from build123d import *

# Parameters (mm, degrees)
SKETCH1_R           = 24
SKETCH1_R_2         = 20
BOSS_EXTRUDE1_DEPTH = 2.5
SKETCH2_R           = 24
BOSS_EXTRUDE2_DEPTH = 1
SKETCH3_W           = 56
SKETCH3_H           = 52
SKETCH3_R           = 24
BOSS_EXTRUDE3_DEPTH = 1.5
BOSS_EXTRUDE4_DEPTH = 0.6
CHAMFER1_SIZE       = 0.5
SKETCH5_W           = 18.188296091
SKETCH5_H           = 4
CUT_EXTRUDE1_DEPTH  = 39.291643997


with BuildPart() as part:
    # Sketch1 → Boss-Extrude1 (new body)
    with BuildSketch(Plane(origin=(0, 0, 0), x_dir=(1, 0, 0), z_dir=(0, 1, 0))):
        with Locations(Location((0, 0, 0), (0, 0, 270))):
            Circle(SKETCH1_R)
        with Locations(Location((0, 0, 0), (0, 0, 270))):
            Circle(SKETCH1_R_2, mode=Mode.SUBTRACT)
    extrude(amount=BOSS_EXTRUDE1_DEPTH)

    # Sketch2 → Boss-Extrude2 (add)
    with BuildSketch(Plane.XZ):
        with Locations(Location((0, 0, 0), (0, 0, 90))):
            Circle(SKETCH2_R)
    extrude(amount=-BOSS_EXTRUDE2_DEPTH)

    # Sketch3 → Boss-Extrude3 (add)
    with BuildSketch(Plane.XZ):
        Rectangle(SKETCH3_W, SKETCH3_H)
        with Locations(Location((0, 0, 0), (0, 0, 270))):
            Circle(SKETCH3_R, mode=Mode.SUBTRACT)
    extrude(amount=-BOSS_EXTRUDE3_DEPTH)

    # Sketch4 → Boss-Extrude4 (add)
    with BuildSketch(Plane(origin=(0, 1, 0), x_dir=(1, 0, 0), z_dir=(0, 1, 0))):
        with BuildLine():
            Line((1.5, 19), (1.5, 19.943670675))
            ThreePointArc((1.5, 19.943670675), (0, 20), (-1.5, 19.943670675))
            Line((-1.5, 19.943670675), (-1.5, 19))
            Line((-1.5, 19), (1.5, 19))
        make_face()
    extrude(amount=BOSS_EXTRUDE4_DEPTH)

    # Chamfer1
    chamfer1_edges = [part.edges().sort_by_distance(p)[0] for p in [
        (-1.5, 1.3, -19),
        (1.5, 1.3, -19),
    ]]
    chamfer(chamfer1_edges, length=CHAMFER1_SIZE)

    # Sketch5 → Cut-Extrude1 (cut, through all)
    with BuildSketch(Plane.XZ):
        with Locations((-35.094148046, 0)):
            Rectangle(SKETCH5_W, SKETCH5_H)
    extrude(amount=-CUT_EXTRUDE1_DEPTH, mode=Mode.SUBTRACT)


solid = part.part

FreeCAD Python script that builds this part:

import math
import FreeCAD as App
import Part
import Sketcher

V = App.Vector
Q = App.Units.Quantity


def edges_at(feature, points):
    """Names of the edges that pass closest to the given points."""
    edges = feature.Shape.Edges
    near = lambda p: min(range(len(edges)), key=lambda i: edges[i].distToShape(Part.Vertex(*p))[0])
    return sorted({f"Edge{near(p) + 1}" for p in points})

doc = App.newDocument("Part")
params = doc.addObject("Spreadsheet::Sheet", "Params")
for row, (alias, value) in enumerate([
    ("sketch1_diameter", "48 mm"),
    ("sketch1_diameter2", "40 mm"),
    ("pad1_length", "2.5 mm"),
    ("sketch2_diameter", "48 mm"),
    ("pad2_length", "1 mm"),
    ("sketch3_diameter", "48 mm"),
    ("sketch3_width", "56 mm"),
    ("sketch3_height", "52 mm"),
    ("pad3_length", "1.5 mm"),
    ("sketch4_radius", "20 mm"),
    ("sketch4_width", "3 mm"),
    ("pad4_length", "0.6 mm"),
    ("chamfer_size", "0.5 mm"),
    ("sketch5_height", "4 mm"),
], start=1):
    params.set(f"A{row}", alias)
    params.set(f"B{row}", "=" + value)
    params.setAlias(f"B{row}", alias)

body = doc.addObject("PartDesign::Body", "Body")

# Sketch on XZ plane
sketch1 = doc.addObject("Sketcher::SketchObject", "Sketch")
body.addObject(sketch1)
sketch1.AttachmentSupport = (doc.XZ_Plane, [""])
sketch1.MapMode = "FlatFace"
sketch1.addGeometry([
    Part.Circle(V(0, 0, 0), V(0, 0, 1), 24),
    Part.Circle(V(0, 0, 0), V(0, 0, 1), 20),
], False)
sketch1.addConstraint([
    Sketcher.Constraint("Coincident", 0, 3, -1, 1),
    Sketcher.Constraint("Coincident", 1, 3, -1, 1),
    Sketcher.Constraint("Diameter", 0, Q("48 mm")),
    Sketcher.Constraint("Diameter", 1, Q("40 mm")),
])
sketch1.setExpression("Constraints[2]", "Params.sketch1_diameter")
sketch1.setExpression("Constraints[3]", "Params.sketch1_diameter2")
pad1 = doc.addObject("PartDesign::Pad", "Pad")
body.addObject(pad1)
pad1.Profile = sketch1
pad1.setExpression("Length", "Params.pad1_length")
pad1.Reversed = True

# Sketch on XZ plane
sketch2 = doc.addObject("Sketcher::SketchObject", "Sketch001")
body.addObject(sketch2)
sketch2.AttachmentSupport = (doc.XZ_Plane, [""])
sketch2.MapMode = "FlatFace"
sketch2.addGeometry(Part.Circle(V(0, 0, 0), V(0, 0, 1), 24), False)
sketch2.addConstraint([
    Sketcher.Constraint("Coincident", 0, 3, -1, 1),
    Sketcher.Constraint("Diameter", 0, Q("48 mm")),
])
sketch2.setExpression("Constraints[1]", "Params.sketch2_diameter")
pad2 = doc.addObject("PartDesign::Pad", "Pad001")
body.addObject(pad2)
pad2.Profile = sketch2
pad2.setExpression("Length", "Params.pad2_length")
pad2.Reversed = True

# Sketch on XZ plane
sketch3 = doc.addObject("Sketcher::SketchObject", "Sketch002")
body.addObject(sketch3)
sketch3.AttachmentSupport = (doc.XZ_Plane, [""])
sketch3.MapMode = "FlatFace"
sketch3.addGeometry([
    Part.LineSegment(V(-28, 26, 0), V(-28, -26, 0)),  # 0
    Part.LineSegment(V(-28, -26, 0), V(28, -26, 0)),  # 1
    Part.LineSegment(V(28, -26, 0), V(28, 26, 0)),  # 2
    Part.LineSegment(V(28, 26, 0), V(-28, 26, 0)),  # 3
    Part.Circle(V(0, 0, 0), V(0, 0, 1), 24),  # 4
], False)
sketch3.addConstraint([
    Sketcher.Constraint("Coincident", 0, 2, 1, 1),
    Sketcher.Constraint("Coincident", 1, 2, 2, 1),
    Sketcher.Constraint("Coincident", 2, 2, 3, 1),
    Sketcher.Constraint("Coincident", 3, 2, 0, 1),
    Sketcher.Constraint("Vertical", 0),
    Sketcher.Constraint("Horizontal", 1),
    Sketcher.Constraint("Vertical", 2),
    Sketcher.Constraint("Horizontal", 3),
    Sketcher.Constraint("Coincident", 4, 3, -1, 1),
    Sketcher.Constraint("Symmetric", 0, 2, 2, 2, -1, 1),
    Sketcher.Constraint("Diameter", 4, Q("48 mm")),
    Sketcher.Constraint("DistanceX", 1, 1, 1, 2, Q("56 mm")),
    Sketcher.Constraint("DistanceY", 0, 2, 0, 1, Q("52 mm")),
])
sketch3.setExpression("Constraints[10]", "Params.sketch3_diameter")
sketch3.setExpression("Constraints[11]", "Params.sketch3_width")
sketch3.setExpression("Constraints[12]", "Params.sketch3_height")
pad3 = doc.addObject("PartDesign::Pad", "Pad002")
body.addObject(pad3)
pad3.Profile = sketch3
pad3.setExpression("Length", "Params.pad3_length")
pad3.Reversed = True

# Sketch on XZ plane
sketch4 = doc.addObject("Sketcher::SketchObject", "Sketch003")
body.addObject(sketch4)
sketch4.AttachmentSupport = (doc.XZ_Plane, [""])
sketch4.MapMode = "FlatFace"
sketch4.AttachmentOffset = App.Placement(V(0, 0, -1), App.Rotation())
sketch4.addGeometry([
    Part.LineSegment(V(1.5, -19, 0), V(1.5, -19.943671, 0)),
    Part.ArcOfCircle(Part.Circle(V(0, 0, 0), V(0, 0, 1), 20), math.radians(-94.301222), math.radians(-85.698778)),
    Part.LineSegment(V(-1.5, -19.943671, 0), V(-1.5, -19, 0)),
    Part.LineSegment(V(-1.5, -19, 0), V(1.5, -19, 0)),
], False)
sketch4.addConstraint([
    Sketcher.Constraint("Coincident", 0, 2, 1, 2),
    Sketcher.Constraint("Coincident", 1, 1, 2, 1),
    Sketcher.Constraint("Coincident", 2, 2, 3, 1),
    Sketcher.Constraint("Coincident", 3, 2, 0, 1),
    Sketcher.Constraint("Vertical", 0),
    Sketcher.Constraint("Vertical", 2),
    Sketcher.Constraint("Horizontal", 3),
    Sketcher.Constraint("Coincident", 1, 3, -1, 1),
    Sketcher.Constraint("Horizontal", 0, 2, 1, 1),
    Sketcher.Constraint("Radius", 1, Q("20 mm")),
    Sketcher.Constraint("DistanceX", 3, 1, 3, 2, Q("3 mm")),
    Sketcher.Constraint("DistanceY", 2, 2, -1, 1, Q("19 mm")),
])
sketch4.setExpression("Constraints[9]", "Params.sketch4_radius")
sketch4.setExpression("Constraints[10]", "Params.sketch4_width")
pad4 = doc.addObject("PartDesign::Pad", "Pad003")
body.addObject(pad4)
pad4.Profile = sketch4
pad4.setExpression("Length", "Params.pad4_length")
pad4.Reversed = True
doc.recompute()

chamfer = doc.addObject("PartDesign::Chamfer", "Chamfer")
body.addObject(chamfer)
chamfer.Base = (pad4, edges_at(pad4, [(-1.5, 1.3, -19), (1.5, 1.3, -19)]))
chamfer.setExpression("Size", "Params.chamfer_size")

# Sketch on XZ plane
sketch5 = doc.addObject("Sketcher::SketchObject", "Sketch004")
body.addObject(sketch5)
sketch5.AttachmentSupport = (doc.XZ_Plane, [""])
sketch5.MapMode = "FlatFace"
sketch5.addGeometry([
    Part.LineSegment(V(-44.188296, 2, 0), V(-44.188296, -2, 0)),
    Part.LineSegment(V(-44.188296, -2, 0), V(-26, -2, 0)),
    Part.LineSegment(V(-26, -2, 0), V(-26, 2, 0)),
    Part.LineSegment(V(-26, 2, 0), V(-44.188296, 2, 0)),
], False)
sketch5.addConstraint([
    Sketcher.Constraint("Coincident", 0, 2, 1, 1),
    Sketcher.Constraint("Coincident", 1, 2, 2, 1),
    Sketcher.Constraint("Coincident", 2, 2, 3, 1),
    Sketcher.Constraint("Coincident", 3, 2, 0, 1),
    Sketcher.Constraint("Vertical", 0),
    Sketcher.Constraint("Horizontal", 1),
    Sketcher.Constraint("Vertical", 2),
    Sketcher.Constraint("Horizontal", 3),
    Sketcher.Constraint("DistanceY", 0, 2, 0, 1, Q("4 mm")),
    Sketcher.Constraint("DistanceY", 0, 2, -1, 1, Q("2 mm")),
    Sketcher.Constraint("DistanceX", 1, 2, -1, 1, Q("26 mm")),
    Sketcher.Constraint("DistanceX", 1, 1, 1, 2, Q("18.188296 mm")),
])
sketch5.setExpression("Constraints[8]", "Params.sketch5_height")
pocket1 = doc.addObject("PartDesign::Pocket", "Pocket")
body.addObject(pocket1)
pocket1.Profile = sketch5
pocket1.Type = "ThroughAll"

doc.recompute()
